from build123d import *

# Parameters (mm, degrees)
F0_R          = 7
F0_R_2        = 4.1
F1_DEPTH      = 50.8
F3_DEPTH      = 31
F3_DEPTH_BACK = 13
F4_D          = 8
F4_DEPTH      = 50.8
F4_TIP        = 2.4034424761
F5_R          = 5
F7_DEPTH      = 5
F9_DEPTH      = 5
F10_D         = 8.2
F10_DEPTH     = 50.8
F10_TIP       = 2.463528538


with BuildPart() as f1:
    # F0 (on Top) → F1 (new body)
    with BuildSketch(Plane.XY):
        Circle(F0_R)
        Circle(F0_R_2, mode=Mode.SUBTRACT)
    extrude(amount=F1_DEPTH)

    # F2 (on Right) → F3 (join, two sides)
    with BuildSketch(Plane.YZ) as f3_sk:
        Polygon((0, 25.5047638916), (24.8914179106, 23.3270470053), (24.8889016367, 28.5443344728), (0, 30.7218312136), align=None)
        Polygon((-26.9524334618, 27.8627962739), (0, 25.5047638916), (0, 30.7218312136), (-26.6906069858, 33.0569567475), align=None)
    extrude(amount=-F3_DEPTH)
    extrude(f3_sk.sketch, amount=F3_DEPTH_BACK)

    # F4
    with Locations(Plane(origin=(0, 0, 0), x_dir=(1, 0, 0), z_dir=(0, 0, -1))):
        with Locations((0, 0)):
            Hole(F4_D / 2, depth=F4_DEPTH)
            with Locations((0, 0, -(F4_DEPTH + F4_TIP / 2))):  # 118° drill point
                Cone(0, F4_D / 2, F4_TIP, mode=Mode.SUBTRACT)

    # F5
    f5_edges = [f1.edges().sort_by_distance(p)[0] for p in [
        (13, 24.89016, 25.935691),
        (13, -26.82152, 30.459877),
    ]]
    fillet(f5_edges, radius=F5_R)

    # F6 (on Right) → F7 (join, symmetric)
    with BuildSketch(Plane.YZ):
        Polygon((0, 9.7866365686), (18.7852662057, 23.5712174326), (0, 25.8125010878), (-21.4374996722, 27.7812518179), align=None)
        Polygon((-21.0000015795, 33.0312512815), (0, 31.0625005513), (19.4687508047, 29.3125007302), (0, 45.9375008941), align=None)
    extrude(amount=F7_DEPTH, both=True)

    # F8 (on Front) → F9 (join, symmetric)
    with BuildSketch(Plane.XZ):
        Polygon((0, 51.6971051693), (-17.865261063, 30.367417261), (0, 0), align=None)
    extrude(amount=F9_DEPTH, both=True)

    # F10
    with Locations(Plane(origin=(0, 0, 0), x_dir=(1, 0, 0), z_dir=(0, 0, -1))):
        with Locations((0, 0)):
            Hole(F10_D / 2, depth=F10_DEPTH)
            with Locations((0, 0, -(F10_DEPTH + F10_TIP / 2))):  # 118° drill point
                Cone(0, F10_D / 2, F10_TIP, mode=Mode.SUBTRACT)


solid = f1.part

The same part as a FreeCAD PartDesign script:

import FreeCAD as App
import Part
import Sketcher
from FreeCAD import Vector
Q = App.Units.Quantity


def edges_at(feature, points):
    """Names of the edges that pass closest to the given points."""
    edges = feature.Shape.Edges
    near = lambda p: min(range(len(edges)), key=lambda i: edges[i].distToShape(Part.Vertex(*p))[0])
    return sorted({f"Edge{near(p) + 1}" for p in points})

doc = App.newDocument("Part")
body = doc.addObject("PartDesign::Body", "Body")

# Sketch on XY plane
sketch1 = body.newObject("Sketcher::SketchObject", "Sketch")
sketch1.AttachmentSupport = (doc.getObject("XY_Plane"), [""])
sketch1.MapMode = "FlatFace"
sketch1.addGeometry([
    Part.Circle(Vector(0, 0, 0), Vector(0, 0, 1), 7),
    Part.Circle(Vector(0, 0, 0), Vector(0, 0, 1), 4.1),
], False)
sketch1.addConstraint([
    Sketcher.Constraint("Coincident", 0, 3, -1, 1),
    Sketcher.Constraint("Coincident", 1, 3, -1, 1),
    Sketcher.Constraint("Diameter", 0, 14.0),
    Sketcher.Constraint("Diameter", 1, 8.2),
])
pad1 = body.newObject("PartDesign::Pad", "Pad")
pad1.Profile = sketch1
pad1.Length = 50.8

# Sketch on YZ plane
sketch2 = body.newObject("Sketcher::SketchObject", "Sketch001")
sketch2.AttachmentSupport = (doc.getObject("YZ_Plane"), [""])
sketch2.MapMode = "FlatFace"
sketch2.addGeometry([
    Part.LineSegment(Vector(0, 26, 0), Vector(25, 23, 0)),  # 0
    Part.LineSegment(Vector(25, 23, 0), Vector(25, 29, 0)),  # 1
    Part.LineSegment(Vector(25, 29, 0), Vector(0, 31, 0)),  # 2
    Part.LineSegment(Vector(0, 31, 0), Vector(-27, 33, 0)),  # 3
    Part.LineSegment(Vector(-27, 33, 0), Vector(-27, 28, 0)),  # 4
    Part.LineSegment(Vector(-27, 28, 0), Vector(0, 26, 0)),  # 5
], False)
sketch2.addConstraint([
    Sketcher.Constraint("Coincident", 0, 2, 1, 1),
    Sketcher.Constraint("Coincident", 1, 2, 2, 1),
    Sketcher.Constraint("Coincident", 2, 2, 3, 1),
    Sketcher.Constraint("Coincident", 3, 2, 4, 1),
    Sketcher.Constraint("Coincident", 4, 2, 5, 1),
    Sketcher.Constraint("Coincident", 5, 2, 0, 1),
    Sketcher.Constraint("PointOnObject", 2, 2, -2),
    Sketcher.Constraint("PointOnObject", 5, 2, -2),
    Sketcher.Constraint("Parallel", 0, 2),
    Sketcher.Constraint("Parallel", 2, 3),
    Sketcher.Constraint("Parallel", 3, 5),
    Sketcher.Constraint("Angle", 0, Q("-5 deg")),
    Sketcher.Constraint("Distance", 0, 24.986499),
    Sketcher.Constraint("DistanceX", -1, 1, 1, 2, 24.888902),
    Sketcher.Constraint("Distance", 1, 5.217288),
    Sketcher.Constraint("Distance", 3, 26.792561),
    Sketcher.Constraint("DistanceY", -1, 1, 2, 2, 30.721831),
    Sketcher.Constraint("DistanceY", 4, 2, 3, 2, 5.19416),
])
pad2 = body.newObject("PartDesign::Pad", "Pad001")
pad2.Profile = sketch2
pad2.Type = "TwoLengths"
pad2.Length = 31
pad2.Length2 = 13
pad2.Reversed = True

# Sketch on XY plane
sketch3 = body.newObject("Sketcher::SketchObject", "Sketch002")
sketch3.AttachmentSupport = (doc.getObject("XY_Plane"), [""])
sketch3.MapMode = "FlatFace"
sketch3.addGeometry(Part.Circle(Vector(0, 0, 0), Vector(0, 0, 1), 4), False)
sketch3.addConstraint([
    Sketcher.Constraint("Coincident", 0, 3, -1, 1),
    Sketcher.Constraint("Diameter", 0, 8.0),
])
doc.recompute()
hole = body.newObject("PartDesign::Hole", "Hole")
hole.Profile = sketch3
hole.ThreadType = "None"
hole.Diameter = 8
hole.DepthType = "Dimension"
hole.Depth = 50.8
hole.DrillPoint = "Angled"
hole.DrillPointAngle = 118
hole.Reversed = True
doc.recompute()

fillet = body.newObject("PartDesign::Fillet", "Fillet")
fillet.Base = (hole, edges_at(hole, [(13, 24.89, 25.936), (13, -26.822, 30.46)]))
fillet.Radius = 5

# Sketch on YZ plane
sketch4 = body.newObject("Sketcher::SketchObject", "Sketch003")
sketch4.AttachmentSupport = (doc.getObject("YZ_Plane"), [""])
sketch4.MapMode = "FlatFace"
sketch4.addGeometry([
    Part.LineSegment(Vector(0, 10, 0), Vector(19, 24, 0)),  # 0
    Part.LineSegment(Vector(19, 24, 0), Vector(0, 26, 0)),  # 1
    Part.LineSegment(Vector(0, 26, 0), Vector(-21, 28, 0)),  # 2
    Part.LineSegment(Vector(-21, 28, 0), Vector(0, 10, 0)),  # 3
    Part.LineSegment(Vector(-21, 33, 0), Vector(0, 31, 0)),  # 4
    Part.LineSegment(Vector(0, 31, 0), Vector(19, 29, 0)),  # 5
    Part.LineSegment(Vector(19, 29, 0), Vector(0, 46, 0)),  # 6
    Part.LineSegment(Vector(0, 46, 0), Vector(-21, 33, 0)),  # 7
], False)
sketch4.addConstraint([
    Sketcher.Constraint("Coincident", 0, 2, 1, 1),
    Sketcher.Constraint("Coincident", 1, 2, 2, 1),
    Sketcher.Constraint("Coincident", 2, 2, 3, 1),
    Sketcher.Constraint("Coincident", 3, 2, 0, 1),
    Sketcher.Constraint("Coincident", 4, 2, 5, 1),
    Sketcher.Constraint("Coincident", 5, 2, 6, 1),
    Sketcher.Constraint("Coincident", 6, 2, 7, 1),
    Sketcher.Constraint("Coincident", 7, 2, 4, 1),
    Sketcher.Constraint("PointOnObject", 1, 2, -2),
    Sketcher.Constraint("PointOnObject", 3, 2, -2),
    Sketcher.Constraint("PointOnObject", 4, 2, -2),
    Sketcher.Constraint("PointOnObject", 6, 2, -2),
    Sketcher.Constraint("DistanceX", 7, 2, -1, 1, 21.000002),
    Sketcher.Constraint("DistanceY", 1, 2, 5, 2, 3.5),
    Sketcher.Constraint("DistanceY", 1, 2, 4, 2, 5.249999),
    Sketcher.Constraint("DistanceY", 2, 2, 7, 2, 5.249999),
    Sketcher.Constraint("DistanceY", 4, 2, 6, 2, 14.875),
    Sketcher.Constraint("Distance", 1, 18.918498),
    Sketcher.Constraint("DistanceY", -1, 1, 1, 2, 25.812501),
    Sketcher.Constraint("DistanceX", 2, 2, -1, 1, 21.4375),
    Sketcher.Constraint("Distance", 2, 21.527712),
    Sketcher.Constraint("Distance", 6, 25.601228),
    Sketcher.Constraint("DistanceY", 3, 2, 0, 2, 13.784581),
    Sketcher.Constraint("Distance", 0, 23.300234),
])
pad3 = body.newObject("PartDesign::Pad", "Pad002")
pad3.Profile = sketch4
pad3.Length = 10
pad3.Midplane = True

# Sketch on XZ plane
sketch5 = body.newObject("Sketcher::SketchObject", "Sketch004")
sketch5.AttachmentSupport = (doc.getObject("XZ_Plane"), [""])
sketch5.MapMode = "FlatFace"
sketch5.addGeometry([
    Part.LineSegment(Vector(0, 52, 0), Vector(-18, 30, 0)),
    Part.LineSegment(Vector(-18, 30, 0), Vector(0, 0, 0)),
    Part.LineSegment(Vector(0, 0, 0), Vector(0, 52, 0)),
], False)
sketch5.addConstraint([
    Sketcher.Constraint("Coincident", 0, 2, 1, 1),
    Sketcher.Constraint("Coincident", 1, 2, 2, 1),
    Sketcher.Constraint("Coincident", 2, 2, 0, 1),
    Sketcher.Constraint("Vertical", 2),
    Sketcher.Constraint("Coincident", 1, 2, -1, 1),
    Sketcher.Constraint("Distance", 0, 27.823068),
    Sketcher.Constraint("DistanceY", 2, 1, 2, 2, 51.697105),
    Sketcher.Constraint("DistanceX", 0, 2, -1, 1, 17.865261),
])
pad4 = body.newObject("PartDesign::Pad", "Pad003")
pad4.Profile = sketch5
pad4.Length = 10
pad4.Midplane = True

# Sketch on XY plane
sketch6 = body.newObject("Sketcher::SketchObject", "Sketch005")
sketch6.AttachmentSupport = (doc.getObject("XY_Plane"), [""])
sketch6.MapMode = "FlatFace"
sketch6.addGeometry(Part.Circle(Vector(0, 0, 0), Vector(0, 0, 1), 4.1), False)
sketch6.addConstraint([
    Sketcher.Constraint("Coincident", 0, 3, -1, 1),
    Sketcher.Constraint("Diameter", 0, 8.2),
])
doc.recompute()
hole2 = body.newObject("PartDesign::Hole", "Hole001")
hole2.Profile = sketch6
hole2.ThreadType = "None"
hole2.Diameter = 8.2
hole2.DepthType = "Dimension"
hole2.Depth = 50.8
hole2.DrillPoint = "Angled"
hole2.DrillPointAngle = 118
hole2.Reversed = True

doc.recompute()
